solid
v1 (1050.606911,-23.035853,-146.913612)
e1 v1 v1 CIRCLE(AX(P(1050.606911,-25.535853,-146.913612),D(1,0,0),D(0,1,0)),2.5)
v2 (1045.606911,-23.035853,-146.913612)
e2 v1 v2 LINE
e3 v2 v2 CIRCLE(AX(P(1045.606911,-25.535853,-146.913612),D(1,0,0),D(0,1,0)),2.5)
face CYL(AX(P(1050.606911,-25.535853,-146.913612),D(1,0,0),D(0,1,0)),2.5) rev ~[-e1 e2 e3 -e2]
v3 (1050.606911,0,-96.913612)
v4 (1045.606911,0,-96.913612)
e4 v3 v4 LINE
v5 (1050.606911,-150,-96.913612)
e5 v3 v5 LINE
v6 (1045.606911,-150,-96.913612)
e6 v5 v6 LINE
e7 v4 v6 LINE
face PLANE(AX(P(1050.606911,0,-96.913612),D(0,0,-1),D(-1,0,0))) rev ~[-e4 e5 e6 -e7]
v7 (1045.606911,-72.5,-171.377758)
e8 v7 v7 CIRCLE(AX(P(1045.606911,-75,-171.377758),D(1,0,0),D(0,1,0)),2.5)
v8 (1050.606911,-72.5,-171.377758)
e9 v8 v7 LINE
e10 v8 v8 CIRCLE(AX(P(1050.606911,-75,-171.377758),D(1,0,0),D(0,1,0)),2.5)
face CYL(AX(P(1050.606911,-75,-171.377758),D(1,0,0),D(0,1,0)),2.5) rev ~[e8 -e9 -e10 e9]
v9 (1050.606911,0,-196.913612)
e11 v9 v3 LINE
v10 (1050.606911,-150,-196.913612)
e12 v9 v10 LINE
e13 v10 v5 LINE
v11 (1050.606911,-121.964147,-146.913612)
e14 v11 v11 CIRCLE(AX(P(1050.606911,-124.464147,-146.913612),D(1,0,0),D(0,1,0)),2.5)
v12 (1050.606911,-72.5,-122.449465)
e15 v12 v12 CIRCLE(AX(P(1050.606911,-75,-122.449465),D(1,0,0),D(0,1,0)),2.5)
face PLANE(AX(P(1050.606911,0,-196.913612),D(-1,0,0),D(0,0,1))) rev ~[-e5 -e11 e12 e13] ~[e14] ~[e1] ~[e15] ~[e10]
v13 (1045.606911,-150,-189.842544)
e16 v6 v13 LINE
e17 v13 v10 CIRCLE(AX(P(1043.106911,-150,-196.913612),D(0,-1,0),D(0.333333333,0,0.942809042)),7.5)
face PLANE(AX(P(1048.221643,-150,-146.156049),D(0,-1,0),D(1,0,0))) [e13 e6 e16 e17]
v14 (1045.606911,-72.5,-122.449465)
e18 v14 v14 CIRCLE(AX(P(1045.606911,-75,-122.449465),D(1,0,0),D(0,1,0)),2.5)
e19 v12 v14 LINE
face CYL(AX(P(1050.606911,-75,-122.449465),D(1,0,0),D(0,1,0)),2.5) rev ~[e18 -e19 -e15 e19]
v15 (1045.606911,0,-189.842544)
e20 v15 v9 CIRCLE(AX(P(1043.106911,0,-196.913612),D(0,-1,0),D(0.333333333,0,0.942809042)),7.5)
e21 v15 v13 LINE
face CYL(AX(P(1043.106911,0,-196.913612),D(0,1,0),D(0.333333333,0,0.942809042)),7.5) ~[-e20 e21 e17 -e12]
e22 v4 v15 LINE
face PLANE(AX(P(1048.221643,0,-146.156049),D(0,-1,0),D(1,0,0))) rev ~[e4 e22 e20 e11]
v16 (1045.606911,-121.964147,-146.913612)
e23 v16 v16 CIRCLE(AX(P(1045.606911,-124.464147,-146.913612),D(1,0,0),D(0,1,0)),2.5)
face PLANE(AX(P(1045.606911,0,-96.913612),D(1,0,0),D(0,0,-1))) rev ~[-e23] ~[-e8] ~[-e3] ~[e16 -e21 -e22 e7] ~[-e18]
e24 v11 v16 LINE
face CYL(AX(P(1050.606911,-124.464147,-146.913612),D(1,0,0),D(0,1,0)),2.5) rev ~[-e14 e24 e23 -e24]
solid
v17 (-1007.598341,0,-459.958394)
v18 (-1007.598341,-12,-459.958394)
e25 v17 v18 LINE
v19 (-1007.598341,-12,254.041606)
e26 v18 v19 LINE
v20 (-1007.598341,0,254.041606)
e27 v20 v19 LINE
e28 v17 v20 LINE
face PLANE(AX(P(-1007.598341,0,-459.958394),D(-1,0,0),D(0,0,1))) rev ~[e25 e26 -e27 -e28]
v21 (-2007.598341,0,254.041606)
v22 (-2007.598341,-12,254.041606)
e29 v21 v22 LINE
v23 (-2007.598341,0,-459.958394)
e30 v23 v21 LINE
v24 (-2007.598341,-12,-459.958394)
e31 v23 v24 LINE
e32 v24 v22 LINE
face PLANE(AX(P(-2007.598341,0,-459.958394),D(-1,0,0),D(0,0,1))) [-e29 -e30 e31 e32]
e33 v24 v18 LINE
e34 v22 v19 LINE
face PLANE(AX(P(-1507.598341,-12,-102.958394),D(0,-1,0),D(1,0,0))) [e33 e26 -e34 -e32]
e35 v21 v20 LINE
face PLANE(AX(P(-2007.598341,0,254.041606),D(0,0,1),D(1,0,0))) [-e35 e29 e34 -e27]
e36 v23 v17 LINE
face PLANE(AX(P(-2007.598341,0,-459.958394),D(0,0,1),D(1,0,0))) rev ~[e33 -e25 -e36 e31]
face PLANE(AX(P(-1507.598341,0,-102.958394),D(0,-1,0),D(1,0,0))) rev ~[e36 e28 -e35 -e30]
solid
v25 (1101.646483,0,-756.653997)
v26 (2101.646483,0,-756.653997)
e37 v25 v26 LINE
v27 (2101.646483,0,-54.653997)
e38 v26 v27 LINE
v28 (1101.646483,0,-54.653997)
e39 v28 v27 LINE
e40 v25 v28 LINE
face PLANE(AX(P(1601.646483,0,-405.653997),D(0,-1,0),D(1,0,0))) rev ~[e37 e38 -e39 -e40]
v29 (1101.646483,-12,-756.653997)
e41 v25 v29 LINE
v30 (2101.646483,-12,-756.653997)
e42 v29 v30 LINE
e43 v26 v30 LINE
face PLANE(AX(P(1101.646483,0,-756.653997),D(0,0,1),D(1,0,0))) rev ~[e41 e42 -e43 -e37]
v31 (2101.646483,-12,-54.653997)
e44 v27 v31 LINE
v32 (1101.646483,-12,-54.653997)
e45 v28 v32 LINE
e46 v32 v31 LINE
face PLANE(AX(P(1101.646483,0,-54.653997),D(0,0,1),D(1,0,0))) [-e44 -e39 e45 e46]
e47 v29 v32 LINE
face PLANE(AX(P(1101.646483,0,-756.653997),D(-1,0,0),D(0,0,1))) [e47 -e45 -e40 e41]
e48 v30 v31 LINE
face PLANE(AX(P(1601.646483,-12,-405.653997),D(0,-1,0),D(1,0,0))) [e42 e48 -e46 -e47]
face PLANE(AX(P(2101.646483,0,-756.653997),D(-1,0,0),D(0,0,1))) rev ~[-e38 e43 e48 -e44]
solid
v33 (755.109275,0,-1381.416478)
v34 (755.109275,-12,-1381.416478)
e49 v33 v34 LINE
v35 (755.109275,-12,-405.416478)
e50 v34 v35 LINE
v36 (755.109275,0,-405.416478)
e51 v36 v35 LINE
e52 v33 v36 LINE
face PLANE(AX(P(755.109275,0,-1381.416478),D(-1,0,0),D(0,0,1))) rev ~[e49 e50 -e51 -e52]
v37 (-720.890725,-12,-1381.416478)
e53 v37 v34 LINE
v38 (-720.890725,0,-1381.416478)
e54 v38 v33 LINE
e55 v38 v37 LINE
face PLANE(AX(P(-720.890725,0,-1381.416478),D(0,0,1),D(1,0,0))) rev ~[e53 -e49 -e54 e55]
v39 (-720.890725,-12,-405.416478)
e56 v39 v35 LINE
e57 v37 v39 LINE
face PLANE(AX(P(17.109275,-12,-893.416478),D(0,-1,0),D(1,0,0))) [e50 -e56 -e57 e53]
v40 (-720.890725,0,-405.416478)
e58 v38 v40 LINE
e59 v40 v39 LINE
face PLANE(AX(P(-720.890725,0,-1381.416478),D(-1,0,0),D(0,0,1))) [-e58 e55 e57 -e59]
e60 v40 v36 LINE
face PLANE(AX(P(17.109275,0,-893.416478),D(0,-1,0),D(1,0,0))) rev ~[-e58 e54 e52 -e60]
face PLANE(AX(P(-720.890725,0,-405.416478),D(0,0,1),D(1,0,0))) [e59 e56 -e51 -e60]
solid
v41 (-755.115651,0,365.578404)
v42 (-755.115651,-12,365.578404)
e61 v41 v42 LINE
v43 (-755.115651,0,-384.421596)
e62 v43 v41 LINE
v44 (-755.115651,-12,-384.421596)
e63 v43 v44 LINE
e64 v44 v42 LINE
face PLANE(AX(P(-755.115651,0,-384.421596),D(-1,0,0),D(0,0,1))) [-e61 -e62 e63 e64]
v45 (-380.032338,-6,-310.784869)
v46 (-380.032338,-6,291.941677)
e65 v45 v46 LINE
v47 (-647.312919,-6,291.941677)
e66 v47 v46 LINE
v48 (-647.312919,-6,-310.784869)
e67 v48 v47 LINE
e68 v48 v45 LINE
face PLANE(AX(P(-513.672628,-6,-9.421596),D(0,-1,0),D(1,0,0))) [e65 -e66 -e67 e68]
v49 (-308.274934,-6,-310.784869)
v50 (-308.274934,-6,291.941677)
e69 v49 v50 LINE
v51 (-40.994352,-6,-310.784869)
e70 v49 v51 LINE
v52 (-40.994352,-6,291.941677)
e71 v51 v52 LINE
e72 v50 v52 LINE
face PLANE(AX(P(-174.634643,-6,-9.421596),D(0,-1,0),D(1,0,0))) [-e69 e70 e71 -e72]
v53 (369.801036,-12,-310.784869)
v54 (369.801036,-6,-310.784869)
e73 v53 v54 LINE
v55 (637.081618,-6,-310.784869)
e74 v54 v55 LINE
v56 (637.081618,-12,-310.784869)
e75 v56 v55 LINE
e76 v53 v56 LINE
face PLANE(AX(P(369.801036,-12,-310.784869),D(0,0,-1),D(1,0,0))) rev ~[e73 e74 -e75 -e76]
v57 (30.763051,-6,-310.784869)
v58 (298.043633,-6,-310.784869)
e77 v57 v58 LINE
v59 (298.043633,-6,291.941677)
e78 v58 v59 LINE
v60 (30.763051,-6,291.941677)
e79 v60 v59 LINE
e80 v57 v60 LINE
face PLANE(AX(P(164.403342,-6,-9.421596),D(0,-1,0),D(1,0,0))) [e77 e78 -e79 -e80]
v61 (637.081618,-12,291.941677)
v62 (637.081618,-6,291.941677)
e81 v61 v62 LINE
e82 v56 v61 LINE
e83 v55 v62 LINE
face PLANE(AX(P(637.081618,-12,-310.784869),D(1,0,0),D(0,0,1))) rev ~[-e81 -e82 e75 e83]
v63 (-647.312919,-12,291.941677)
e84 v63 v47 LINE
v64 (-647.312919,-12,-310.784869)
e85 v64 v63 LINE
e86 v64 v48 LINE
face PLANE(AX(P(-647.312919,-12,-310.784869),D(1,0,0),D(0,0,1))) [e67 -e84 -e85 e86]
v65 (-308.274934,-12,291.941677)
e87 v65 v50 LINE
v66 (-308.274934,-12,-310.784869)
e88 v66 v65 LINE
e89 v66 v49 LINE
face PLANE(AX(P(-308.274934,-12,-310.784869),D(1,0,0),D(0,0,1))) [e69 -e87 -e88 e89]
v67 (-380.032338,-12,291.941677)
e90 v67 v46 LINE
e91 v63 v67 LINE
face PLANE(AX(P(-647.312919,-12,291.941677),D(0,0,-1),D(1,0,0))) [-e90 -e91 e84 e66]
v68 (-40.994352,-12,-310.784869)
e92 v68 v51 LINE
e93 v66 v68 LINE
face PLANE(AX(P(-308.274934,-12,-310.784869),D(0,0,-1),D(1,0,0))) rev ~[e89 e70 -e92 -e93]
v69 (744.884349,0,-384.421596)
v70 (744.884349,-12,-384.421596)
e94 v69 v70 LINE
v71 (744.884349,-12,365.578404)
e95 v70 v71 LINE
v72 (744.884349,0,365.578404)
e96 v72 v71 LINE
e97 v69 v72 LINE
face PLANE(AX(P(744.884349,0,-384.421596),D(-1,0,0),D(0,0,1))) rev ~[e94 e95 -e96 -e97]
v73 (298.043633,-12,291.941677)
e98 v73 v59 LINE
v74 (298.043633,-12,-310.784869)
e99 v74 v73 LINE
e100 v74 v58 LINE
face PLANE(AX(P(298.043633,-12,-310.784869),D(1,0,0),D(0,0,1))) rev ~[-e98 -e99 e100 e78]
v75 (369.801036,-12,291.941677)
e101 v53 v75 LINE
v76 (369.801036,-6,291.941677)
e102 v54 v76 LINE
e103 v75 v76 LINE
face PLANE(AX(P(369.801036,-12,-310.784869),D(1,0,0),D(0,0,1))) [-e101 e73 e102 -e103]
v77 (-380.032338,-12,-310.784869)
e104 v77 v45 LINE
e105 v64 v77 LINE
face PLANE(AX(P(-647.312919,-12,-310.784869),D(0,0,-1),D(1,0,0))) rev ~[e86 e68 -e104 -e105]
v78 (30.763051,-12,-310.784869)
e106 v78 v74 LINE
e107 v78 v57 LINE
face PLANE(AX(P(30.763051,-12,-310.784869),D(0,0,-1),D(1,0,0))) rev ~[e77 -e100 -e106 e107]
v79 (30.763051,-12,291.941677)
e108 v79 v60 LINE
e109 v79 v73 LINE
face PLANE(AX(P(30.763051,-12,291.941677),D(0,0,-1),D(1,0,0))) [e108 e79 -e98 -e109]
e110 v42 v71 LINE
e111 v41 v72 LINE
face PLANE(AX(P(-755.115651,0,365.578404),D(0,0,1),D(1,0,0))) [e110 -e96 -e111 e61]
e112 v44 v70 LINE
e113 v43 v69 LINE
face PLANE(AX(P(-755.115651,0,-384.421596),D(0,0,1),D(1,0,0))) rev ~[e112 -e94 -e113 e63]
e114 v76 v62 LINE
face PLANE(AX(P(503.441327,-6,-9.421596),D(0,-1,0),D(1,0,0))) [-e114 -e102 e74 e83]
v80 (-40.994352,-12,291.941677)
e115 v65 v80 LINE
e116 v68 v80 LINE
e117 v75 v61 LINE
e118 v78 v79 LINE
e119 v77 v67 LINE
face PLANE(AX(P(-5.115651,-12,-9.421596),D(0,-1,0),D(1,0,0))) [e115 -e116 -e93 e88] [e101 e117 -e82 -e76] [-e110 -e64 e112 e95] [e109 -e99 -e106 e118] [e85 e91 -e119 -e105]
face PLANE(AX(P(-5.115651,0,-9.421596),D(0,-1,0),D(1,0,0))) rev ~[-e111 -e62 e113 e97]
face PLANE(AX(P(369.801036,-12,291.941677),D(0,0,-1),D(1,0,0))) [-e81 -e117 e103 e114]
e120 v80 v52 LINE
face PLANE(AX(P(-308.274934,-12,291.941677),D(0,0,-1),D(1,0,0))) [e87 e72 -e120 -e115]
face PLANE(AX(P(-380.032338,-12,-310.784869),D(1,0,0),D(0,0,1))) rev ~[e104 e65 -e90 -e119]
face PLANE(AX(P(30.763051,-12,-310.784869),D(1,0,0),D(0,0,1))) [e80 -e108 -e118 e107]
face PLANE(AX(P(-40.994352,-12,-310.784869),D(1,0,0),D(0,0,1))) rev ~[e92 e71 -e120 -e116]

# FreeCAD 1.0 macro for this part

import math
import FreeCAD as App
import Part
import Sketcher
from FreeCAD import Vector

doc = App.newDocument("Part")
body = doc.addObject("PartDesign::Body", "Body")

sketch1 = body.newObject("Sketcher::SketchObject", "Sketch")
sketch1.AttachmentSupport = (doc.getObject("XZ_Plane"), [""])
sketch1.MapMode = "FlatFace"
sketch1.addGeometry([
    Part.LineSegment(Vector(-755, 366, 0), Vector(-755, -384, 0)),
    Part.LineSegment(Vector(-755, -384, 0), Vector(745, -384, 0)),
    Part.LineSegment(Vector(745, -384, 0), Vector(745, 366, 0)),
    Part.LineSegment(Vector(745, 366, 0), Vector(-755, 366, 0)),
], False)
sketch1.addConstraint([
    Sketcher.Constraint("Coincident", 0, 2, 1, 1),
    Sketcher.Constraint("Coincident", 1, 2, 2, 1),
    Sketcher.Constraint("Coincident", 2, 2, 3, 1),
    Sketcher.Constraint("Coincident", 3, 2, 0, 1),
    Sketcher.Constraint("Vertical", 0),
    Sketcher.Constraint("Horizontal", 1),
    Sketcher.Constraint("Vertical", 2),
    Sketcher.Constraint("Horizontal", 3),
    Sketcher.Constraint("DistanceX", 1, 1, 1, 2, 1500.0),
    Sketcher.Constraint("DistanceY", 0, 2, 0, 1, 750.0),
    Sketcher.Constraint("DistanceX", 0, 2, -1, 1, 755.115651),
    Sketcher.Constraint("DistanceY", 0, 2, -1, 1, 384.421596),
])
pad1 = body.newObject("PartDesign::Pad", "Pad")
pad1.Profile = sketch1
pad1.Length = 12

sketch2 = body.newObject("Sketcher::SketchObject", "Sketch001")
sketch2.AttachmentSupport = (doc.getObject("XZ_Plane"), [""])
sketch2.MapMode = "FlatFace"
sketch2.AttachmentOffset = App.Placement(Vector(0, 0, 12), App.Rotation())
sketch2.addGeometry([
    Part.LineSegment(Vector(-647, 292, 0), Vector(-647, -311, 0)),
    Part.LineSegment(Vector(-647, -311, 0), Vector(-380, -311, 0)),
    Part.LineSegment(Vector(-380, -311, 0), Vector(-380, 292, 0)),
    Part.LineSegment(Vector(-380, 292, 0), Vector(-647, 292, 0)),
    Part.LineSegment(Vector(-308, 292, 0), Vector(-308, -311, 0)),
    Part.LineSegment(Vector(-308, -311, 0), Vector(-41, -311, 0)),
    Part.LineSegment(Vector(-41, -311, 0), Vector(-41, 292, 0)),
    Part.LineSegment(Vector(-41, 292, 0), Vector(-308, 292, 0)),
    Part.LineSegment(Vector(31, 292, 0), Vector(31, -311, 0)),
    Part.LineSegment(Vector(31, -311, 0), Vector(298, -311, 0)),
    Part.LineSegment(Vector(298, -311, 0), Vector(298, 292, 0)),
    Part.LineSegment(Vector(298, 292, 0), Vector(31, 292, 0)),
    Part.LineSegment(Vector(370, 292, 0), Vector(370, -311, 0)),
    Part.LineSegment(Vector(370, -311, 0), Vector(637, -311, 0)),
    Part.LineSegment(Vector(637, -311, 0), Vector(637, 292, 0)),
    Part.LineSegment(Vector(637, 292, 0), Vector(370, 292, 0)),
], False)
sketch2.addConstraint([
    Sketcher.Constraint("Coincident", 0, 2, 1, 1),
    Sketcher.Constraint("Coincident", 1, 2, 2, 1),
    Sketcher.Constraint("Coincident", 2, 2, 3, 1),
    Sketcher.Constraint("Coincident", 3, 2, 0, 1),
    Sketcher.Constraint("Coincident", 4, 2, 5, 1),
    Sketcher.Constraint("Coincident", 5, 2, 6, 1),
    Sketcher.Constraint("Coincident", 6, 2, 7, 1),
    Sketcher.Constraint("Coincident", 7, 2, 4, 1),
    Sketcher.Constraint("Coincident", 8, 2, 9, 1),
    Sketcher.Constraint("Coincident", 9, 2, 10, 1),
    Sketcher.Constraint("Coincident", 10, 2, 11, 1),
    Sketcher.Constraint("Coincident", 11, 2, 8, 1),
    Sketcher.Constraint("Coincident", 12, 2, 13, 1),
    Sketcher.Constraint("Coincident", 13, 2, 14, 1),
    Sketcher.Constraint("Coincident", 14, 2, 15, 1),
    Sketcher.Constraint("Coincident", 15, 2, 12, 1),
    Sketcher.Constraint("Vertical", 0),
    Sketcher.Constraint("Horizontal", 1),
    Sketcher.Constraint("Vertical", 2),
    Sketcher.Constraint("Horizontal", 3),
    Sketcher.Constraint("Vertical", 4),
    Sketcher.Constraint("Horizontal", 5),
    Sketcher.Constraint("Vertical", 6),
    Sketcher.Constraint("Horizontal", 7),
    Sketcher.Constraint("Vertical", 8),
    Sketcher.Constraint("Horizontal", 9),
    Sketcher.Constraint("Vertical", 10),
    Sketcher.Constraint("Horizontal", 11),
    Sketcher.Constraint("Vertical", 12),
    Sketcher.Constraint("Horizontal", 13),
    Sketcher.Constraint("Vertical", 14),
    Sketcher.Constraint("Horizontal", 15),
    Sketcher.Constraint("Horizontal", 1, 2, 4, 2),
    Sketcher.Constraint("Horizontal", 3, 2, 6, 2),
    Sketcher.Constraint("Horizontal", 5, 2, 8, 2),
    Sketcher.Constraint("Horizontal", 7, 2, 10, 2),
    Sketcher.Constraint("Horizontal", 9, 2, 12, 2),
    Sketcher.Constraint("Horizontal", 11, 2, 14, 2),
    Sketcher.Constraint("Equal", 3, 5),
    Sketcher.Constraint("Equal", 7, 9),
    Sketcher.Constraint("Equal", 11, 13),
    Sketcher.Constraint("DistanceX", 1, 1, 1, 2, 267.280581),
    Sketcher.Constraint("DistanceY", 0, 2, 0, 1, 602.726546),
    Sketcher.Constraint("DistanceX", 0, 2, -1, 1, 647.312919),
    Sketcher.Constraint("DistanceY", 0, 2, -1, 1, 310.784869),
    Sketcher.Constraint("DistanceX", -1, 1, 8, 2, 30.763051),
    Sketcher.Constraint("DistanceX", 5, 2, 12, 2, 410.795389),
    Sketcher.Constraint("DistanceX", 4, 2, -1, 1, 308.274934),
])
pocket1 = body.newObject("PartDesign::Pocket", "Pocket")
pocket1.Profile = sketch2
pocket1.Length = 6
body2 = doc.addObject("PartDesign::Body", "Body001")

sketch3 = body2.newObject("Sketcher::SketchObject", "Sketch002")
sketch3.AttachmentSupport = (doc.getObject("XZ_Plane001"), [""])
sketch3.MapMode = "FlatFace"
sketch3.addGeometry([
    Part.LineSegment(Vector(1051, -197, 0), Vector(1051, -97, 0)),
    Part.LineSegment(Vector(1051, -97, 0), Vector(1046, -97, 0)),
    Part.LineSegment(Vector(1046, -97, 0), Vector(1046, -190, 0)),
    Part.ArcOfCircle(Part.Circle(Vector(1043, -197, 0), Vector(0, 0, 1), 8), math.radians(71), math.radians(360)),
], False)
sketch3.addConstraint([
    Sketcher.Constraint("Coincident", 0, 2, 1, 1),
    Sketcher.Constraint("Coincident", 1, 2, 2, 1),
    Sketcher.Constraint("Coincident", 2, 2, 3, 1),
    Sketcher.Constraint("Tangent", 3, 2, 0, 1),
    Sketcher.Constraint("Vertical", 0),
    Sketcher.Constraint("Horizontal", 1),
    Sketcher.Constraint("Vertical", 2),
    Sketcher.Constraint("Radius", 3, 7.5),
    Sketcher.Constraint("DistanceX", 1, 2, 1, 1, 5.0),
    Sketcher.Constraint("DistanceY", 0, 1, 0, 2, 100.0),
    Sketcher.Constraint("DistanceX", -1, 1, 3, 3, 1043.106911),
    Sketcher.Constraint("DistanceY", 3, 3, -1, 1, 196.913612),
])
pad2 = body2.newObject("PartDesign::Pad", "Pad001")
pad2.Profile = sketch3
pad2.Length = 150

sketch4 = body2.newObject("Sketcher::SketchObject", "Sketch003")
sketch4.AttachmentSupport = (doc.getObject("YZ_Plane001"), [""])
sketch4.MapMode = "FlatFace"
sketch4.AttachmentOffset = App.Placement(Vector(0, 0, 1050.606911), App.Rotation())
sketch4.addGeometry([
    Part.Circle(Vector(-124.5, -146.9, 0), Vector(0, 0, 1), 2.5),
    Part.Circle(Vector(-75, -122.4, 0), Vector(0, 0, 1), 2.5),
    Part.Circle(Vector(-75, -171.4, 0), Vector(0, 0, 1), 2.5),
    Part.Circle(Vector(-25.5, -146.9, 0), Vector(0, 0, 1), 2.5),
], False)
sketch4.addConstraint([
    Sketcher.Constraint("Equal", 0, 1),
    Sketcher.Constraint("Equal", 1, 2),
    Sketcher.Constraint("Equal", 2, 3),
    Sketcher.Constraint("Horizontal", 0, 3, 3, 3),
    Sketcher.Constraint("Vertical", 1, 3, 2, 3),
    Sketcher.Constraint("Diameter", 0, 5.0),
    Sketcher.Constraint("DistanceX", 1, 3, -1, 1, 75.0),
    Sketcher.Constraint("DistanceY", 0, 3, -1, 1, 146.913612),
    Sketcher.Constraint("DistanceY", 2, 3, -1, 1, 171.377758),
    Sketcher.Constraint("DistanceX", 0, 3, -1, 1, 124.464147),
    Sketcher.Constraint("DistanceY", 1, 3, -1, 1, 122.449465),
    Sketcher.Constraint("DistanceX", 3, 3, -1, 1, 25.535853),
])
pocket2 = body2.newObject("PartDesign::Pocket", "Pocket001")
pocket2.Profile = sketch4
pocket2.Type = "ThroughAll"
body3 = doc.addObject("PartDesign::Body", "Body002")

sketch5 = body3.newObject("Sketcher::SketchObject", "Sketch004")
sketch5.AttachmentSupport = (doc.getObject("XZ_Plane002"), [""])
sketch5.MapMode = "FlatFace"
sketch5.addGeometry([
    Part.LineSegment(Vector(-2008, 254, 0), Vector(-2008, -460, 0)),
    Part.LineSegment(Vector(-2008, -460, 0), Vector(-1008, -460, 0)),
    Part.LineSegment(Vector(-1008, -460, 0), Vector(-1008, 254, 0)),
    Part.LineSegment(Vector(-1008, 254, 0), Vector(-2008, 254, 0)),
], False)
sketch5.addConstraint([
    Sketcher.Constraint("Coincident", 0, 2, 1, 1),
    Sketcher.Constraint("Coincident", 1, 2, 2, 1),
    Sketcher.Constraint("Coincident", 2, 2, 3, 1),
    Sketcher.Constraint("Coincident", 3, 2, 0, 1),
    Sketcher.Constraint("Vertical", 0),
    Sketcher.Constraint("Horizontal", 1),
    Sketcher.Constraint("Vertical", 2),
    Sketcher.Constraint("Horizontal", 3),
    Sketcher.Constraint("DistanceX", 1, 1, 1, 2, 1000.0),
    Sketcher.Constraint("DistanceY", 0, 2, 0, 1, 714.0),
    Sketcher.Constraint("DistanceX", 0, 2, -1, 1, 2007.598341),
    Sketcher.Constraint("DistanceY", 0, 2, -1, 1, 459.958394),
])
pad3 = body3.newObject("PartDesign::Pad", "Pad002")
pad3.Profile = sketch5
pad3.Length = 12
body4 = doc.addObject("PartDesign::Body", "Body003")

sketch6 = body4.newObject("Sketcher::SketchObject", "Sketch005")
sketch6.AttachmentSupport = (doc.getObject("XZ_Plane003"), [""])
sketch6.MapMode = "FlatFace"
sketch6.addGeometry([
    Part.LineSegment(Vector(1102, -55, 0), Vector(1102, -757, 0)),
    Part.LineSegment(Vector(1102, -757, 0), Vector(2102, -757, 0)),
    Part.LineSegment(Vector(2102, -757, 0), Vector(2102, -55, 0)),
    Part.LineSegment(Vector(2102, -55, 0), Vector(1102, -55, 0)),
], False)
sketch6.addConstraint([
    Sketcher.Constraint("Coincident", 0, 2, 1, 1),
    Sketcher.Constraint("Coincident", 1, 2, 2, 1),
    Sketcher.Constraint("Coincident", 2, 2, 3, 1),
    Sketcher.Constraint("Coincident", 3, 2, 0, 1),
    Sketcher.Constraint("Vertical", 0),
    Sketcher.Constraint("Horizontal", 1),
    Sketcher.Constraint("Vertical", 2),
    Sketcher.Constraint("Horizontal", 3),
    Sketcher.Constraint("DistanceX", 1, 1, 1, 2, 1000.0),
    Sketcher.Constraint("DistanceY", 0, 2, 0, 1, 702.0),
    Sketcher.Constraint("DistanceX", -1, 1, 0, 2, 1101.646483),
    Sketcher.Constraint("DistanceY", 0, 2, -1, 1, 756.653997),
])
pad4 = body4.newObject("PartDesign::Pad", "Pad003")
pad4.Profile = sketch6
pad4.Length = 12
body5 = doc.addObject("PartDesign::Body", "Body004")

sketch7 = body5.newObject("Sketcher::SketchObject", "Sketch006")
sketch7.AttachmentSupport = (doc.getObject("XZ_Plane004"), [""])
sketch7.MapMode = "FlatFace"
sketch7.addGeometry([
    Part.LineSegment(Vector(-721, -405, 0), Vector(-721, -1381, 0)),
    Part.LineSegment(Vector(-721, -1381, 0), Vector(755, -1381, 0)),
    Part.LineSegment(Vector(755, -1381, 0), Vector(755, -405, 0)),
    Part.LineSegment(Vector(755, -405, 0), Vector(-721, -405, 0)),
], False)
sketch7.addConstraint([
    Sketcher.Constraint("Coincident", 0, 2, 1, 1),
    Sketcher.Constraint("Coincident", 1, 2, 2, 1),
    Sketcher.Constraint("Coincident", 2, 2, 3, 1),
    Sketcher.Constraint("Coincident", 3, 2, 0, 1),
    Sketcher.Constraint("Vertical", 0),
    Sketcher.Constraint("Horizontal", 1),
    Sketcher.Constraint("Vertical", 2),
    Sketcher.Constraint("Horizontal", 3),
    Sketcher.Constraint("DistanceX", 1, 1, 1, 2, 1476.0),
    Sketcher.Constraint("DistanceY", 0, 2, 0, 1, 976.0),
    Sketcher.Constraint("DistanceY", 0, 2, -1, 1, 1381.416478),
    Sketcher.Constraint("DistanceX", 0, 2, -1, 1, 720.890725),
])
pad5 = body5.newObject("PartDesign::Pad", "Pad004")
pad5.Profile = sketch7
pad5.Length = 12

doc.recompute()
